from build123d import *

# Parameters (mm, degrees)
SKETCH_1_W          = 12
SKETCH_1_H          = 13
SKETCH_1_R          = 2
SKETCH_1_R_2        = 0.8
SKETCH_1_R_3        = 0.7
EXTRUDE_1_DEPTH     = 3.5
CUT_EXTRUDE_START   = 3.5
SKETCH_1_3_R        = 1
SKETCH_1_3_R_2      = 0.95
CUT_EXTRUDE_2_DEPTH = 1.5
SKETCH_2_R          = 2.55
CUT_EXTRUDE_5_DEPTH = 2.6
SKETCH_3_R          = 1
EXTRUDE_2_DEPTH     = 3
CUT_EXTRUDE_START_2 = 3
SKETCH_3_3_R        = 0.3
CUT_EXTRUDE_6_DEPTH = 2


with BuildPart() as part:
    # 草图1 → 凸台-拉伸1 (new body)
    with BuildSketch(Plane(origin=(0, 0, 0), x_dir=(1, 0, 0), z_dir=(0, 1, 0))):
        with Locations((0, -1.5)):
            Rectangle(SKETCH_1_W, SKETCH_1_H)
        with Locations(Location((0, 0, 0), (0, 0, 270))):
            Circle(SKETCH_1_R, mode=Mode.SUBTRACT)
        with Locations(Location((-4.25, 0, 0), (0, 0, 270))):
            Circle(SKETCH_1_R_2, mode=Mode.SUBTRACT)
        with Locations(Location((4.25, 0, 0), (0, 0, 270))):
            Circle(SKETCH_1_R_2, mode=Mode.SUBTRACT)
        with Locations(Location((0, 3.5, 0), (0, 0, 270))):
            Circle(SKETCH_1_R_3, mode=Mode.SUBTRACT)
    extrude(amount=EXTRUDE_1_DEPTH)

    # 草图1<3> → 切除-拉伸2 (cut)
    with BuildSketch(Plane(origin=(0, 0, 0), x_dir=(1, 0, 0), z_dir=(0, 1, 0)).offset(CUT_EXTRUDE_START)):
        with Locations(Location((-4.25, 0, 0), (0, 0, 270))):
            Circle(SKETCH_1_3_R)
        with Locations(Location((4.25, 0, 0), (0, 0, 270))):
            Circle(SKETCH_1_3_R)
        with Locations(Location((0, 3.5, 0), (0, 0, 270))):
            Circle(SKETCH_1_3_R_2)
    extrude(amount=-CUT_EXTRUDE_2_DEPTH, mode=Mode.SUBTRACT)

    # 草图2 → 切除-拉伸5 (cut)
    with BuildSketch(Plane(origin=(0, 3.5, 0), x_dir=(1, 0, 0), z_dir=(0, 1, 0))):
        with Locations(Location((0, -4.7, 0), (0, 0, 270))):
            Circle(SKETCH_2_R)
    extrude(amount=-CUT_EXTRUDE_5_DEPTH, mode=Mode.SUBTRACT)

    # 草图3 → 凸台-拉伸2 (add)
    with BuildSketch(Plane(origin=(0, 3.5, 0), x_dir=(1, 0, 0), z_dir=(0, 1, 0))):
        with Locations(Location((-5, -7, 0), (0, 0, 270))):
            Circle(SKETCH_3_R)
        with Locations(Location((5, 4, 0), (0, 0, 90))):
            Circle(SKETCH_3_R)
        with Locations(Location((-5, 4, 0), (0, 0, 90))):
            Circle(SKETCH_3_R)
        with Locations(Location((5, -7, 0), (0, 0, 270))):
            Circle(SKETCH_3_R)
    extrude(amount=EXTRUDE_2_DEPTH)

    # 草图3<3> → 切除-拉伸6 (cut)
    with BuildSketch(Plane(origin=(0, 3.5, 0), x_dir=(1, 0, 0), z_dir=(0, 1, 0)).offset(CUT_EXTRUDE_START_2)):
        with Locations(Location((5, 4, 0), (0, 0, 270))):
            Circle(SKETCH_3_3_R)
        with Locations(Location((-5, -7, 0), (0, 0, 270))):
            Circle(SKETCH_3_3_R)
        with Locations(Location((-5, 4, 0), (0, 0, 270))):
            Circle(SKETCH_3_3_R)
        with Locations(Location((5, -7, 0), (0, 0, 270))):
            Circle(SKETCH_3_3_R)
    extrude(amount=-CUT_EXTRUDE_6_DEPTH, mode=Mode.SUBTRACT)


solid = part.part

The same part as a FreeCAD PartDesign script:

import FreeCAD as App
import Part
import Sketcher

V = App.Vector
Q = App.Units.Quantity

doc = App.newDocument("Part")
body = doc.addObject("PartDesign::Body", "Body")

# Sketch on XZ plane
sketch1 = body.newObject("Sketcher::SketchObject", "Sketch")
sketch1.AttachmentSupport = (doc.getObject("XZ_Plane"), [""])
sketch1.MapMode = "FlatFace"
sketch1.addGeometry(Part.LineSegment(V(-6, -5, 0), V(-6, 8, 0)), False)
sketch1.addGeometry(Part.LineSegment(V(-6, 8, 0), V(6, 8, 0)), False)
sketch1.addGeometry(Part.LineSegment(V(6, 8, 0), V(6, -5, 0)), False)
sketch1.addGeometry(Part.LineSegment(V(6, -5, 0), V(-6, -5, 0)), False)
sketch1.addGeometry(Part.Circle(V(-4.25, 0, 0), V(0, 0, 1), 0.8), False)
sketch1.addGeometry(Part.Circle(V(0, 0, 0), V(0, 0, 1), 2), False)
sketch1.addGeometry(Part.Circle(V(4.25, 0, 0), V(0, 0, 1), 0.8), False)
sketch1.addGeometry(Part.Circle(V(0, -3.5, 0), V(0, 0, 1), 0.7), False)
sketch1.addConstraint(Sketcher.Constraint("Coincident", 0, 2, 1, 1))
sketch1.addConstraint(Sketcher.Constraint("Coincident", 1, 2, 2, 1))
sketch1.addConstraint(Sketcher.Constraint("Coincident", 2, 2, 3, 1))
sketch1.addConstraint(Sketcher.Constraint("Coincident", 3, 2, 0, 1))
sketch1.addConstraint(Sketcher.Constraint("Vertical", 0))
sketch1.addConstraint(Sketcher.Constraint("Horizontal", 1))
sketch1.addConstraint(Sketcher.Constraint("Vertical", 2))
sketch1.addConstraint(Sketcher.Constraint("Horizontal", 3))
sketch1.addConstraint(Sketcher.Constraint("Coincident", 5, 3, -1, 1))
sketch1.addConstraint(Sketcher.Constraint("Equal", 4, 6))
sketch1.addConstraint(Sketcher.Constraint("Symmetric", 4, 3, 6, 3, -1, 1))
sketch1.addConstraint(Sketcher.Constraint("PointOnObject", 4, 3, -1))
sketch1.addConstraint(Sketcher.Constraint("PointOnObject", 7, 3, -2))
sketch1.addConstraint(Sketcher.Constraint("Diameter", 5, Q("4 mm")))
sketch1.addConstraint(Sketcher.Constraint("Diameter", 4, Q("1.6 mm")))
sketch1.addConstraint(Sketcher.Constraint("Diameter", 7, Q("1.4 mm")))
sketch1.addConstraint(Sketcher.Constraint("DistanceX", 1, 1, 1, 2, Q("12 mm")))
sketch1.addConstraint(Sketcher.Constraint("DistanceY", 0, 1, 0, 2, Q("13 mm")))
sketch1.addConstraint(Sketcher.Constraint("DistanceX", 0, 2, -1, 1, Q("6 mm")))
sketch1.addConstraint(Sketcher.Constraint("DistanceY", -1, 1, 0, 2, Q("8 mm")))
sketch1.addConstraint(Sketcher.Constraint("DistanceY", 7, 3, -1, 1, Q("3.5 mm")))
sketch1.addConstraint(Sketcher.Constraint("DistanceX", 4, 3, 6, 3, Q("8.5 mm")))
pad1 = body.newObject("PartDesign::Pad", "Pad")
pad1.Profile = sketch1
pad1.Length = 3.5
pad1.Reversed = True

# Sketch on XZ plane
sketch2 = body.newObject("Sketcher::SketchObject", "Sketch001")
sketch2.AttachmentSupport = (doc.getObject("XZ_Plane"), [""])
sketch2.MapMode = "FlatFace"
sketch2.AttachmentOffset = App.Placement(V(0, 0, -3.5), App.Rotation())
sketch2.addGeometry(Part.Circle(V(-4.25, 0, 0), V(0, 0, 1), 1), False)
sketch2.addGeometry(Part.Circle(V(4.25, 0, 0), V(0, 0, 1), 1), False)
sketch2.addGeometry(Part.Circle(V(0, -3.5, 0), V(0, 0, 1), 0.95), False)
sketch2.addConstraint(Sketcher.Constraint("Equal", 0, 1))
sketch2.addConstraint(Sketcher.Constraint("Symmetric", 0, 3, 1, 3, -1, 1))
sketch2.addConstraint(Sketcher.Constraint("PointOnObject", 0, 3, -1))
sketch2.addConstraint(Sketcher.Constraint("PointOnObject", 2, 3, -2))
sketch2.addConstraint(Sketcher.Constraint("Diameter", 0, Q("2 mm")))
sketch2.addConstraint(Sketcher.Constraint("Diameter", 2, Q("1.9 mm")))
sketch2.addConstraint(Sketcher.Constraint("DistanceY", 2, 3, -1, 1, Q("3.5 mm")))
sketch2.addConstraint(Sketcher.Constraint("DistanceX", 0, 3, 1, 3, Q("8.5 mm")))
pocket1 = body.newObject("PartDesign::Pocket", "Pocket")
pocket1.Profile = sketch2
pocket1.Length = 1.5
pocket1.Reversed = True

# Sketch on XZ plane
sketch3 = body.newObject("Sketcher::SketchObject", "Sketch002")
sketch3.AttachmentSupport = (doc.getObject("XZ_Plane"), [""])
sketch3.MapMode = "FlatFace"
sketch3.AttachmentOffset = App.Placement(V(0, 0, -3.5), App.Rotation())
sketch3.addGeometry(Part.Circle(V(0, 4.7, 0), V(0, 0, 1), 2.55), False)
sketch3.addConstraint(Sketcher.Constraint("PointOnObject", 0, 3, -2))
sketch3.addConstraint(Sketcher.Constraint("Diameter", 0, Q("5.1 mm")))
sketch3.addConstraint(Sketcher.Constraint("DistanceY", -1, 1, 0, 3, Q("4.7 mm")))
pocket2 = body.newObject("PartDesign::Pocket", "Pocket001")
pocket2.Profile = sketch3
pocket2.Length = 2.6
pocket2.Reversed = True

# Sketch on XZ plane
sketch4 = body.newObject("Sketcher::SketchObject", "Sketch003")
sketch4.AttachmentSupport = (doc.getObject("XZ_Plane"), [""])
sketch4.MapMode = "FlatFace"
sketch4.AttachmentOffset = App.Placement(V(0, 0, -3.5), App.Rotation())
sketch4.addGeometry(Part.Circle(V(-5, 7, 0), V(0, 0, 1), 1), False)
sketch4.addGeometry(Part.Circle(V(5, -4, 0), V(0, 0, 1), 1), False)
sketch4.addGeometry(Part.Circle(V(-5, -4, 0), V(0, 0, 1), 1), False)
sketch4.addGeometry(Part.Circle(V(5, 7, 0), V(0, 0, 1), 1), False)
sketch4.addConstraint(Sketcher.Constraint("Equal", 0, 1))
sketch4.addConstraint(Sketcher.Constraint("Equal", 1, 2))
sketch4.addConstraint(Sketcher.Constraint("Equal", 2, 3))
sketch4.addConstraint(Sketcher.Constraint("Symmetric", 1, 3, 2, 3, -2))
sketch4.addConstraint(Sketcher.Constraint("Symmetric", 0, 3, 3, 3, -2))
sketch4.addConstraint(Sketcher.Constraint("Vertical", 0, 3, 2, 3))
sketch4.addConstraint(Sketcher.Constraint("Diameter", 0, Q("2 mm")))
sketch4.addConstraint(Sketcher.Constraint("DistanceX", 0, 3, -1, 1, Q("5 mm")))
sketch4.addConstraint(Sketcher.Constraint("DistanceY", -1, 1, 0, 3, Q("7 mm")))
sketch4.addConstraint(Sketcher.Constraint("DistanceY", 1, 3, -1, 1, Q("4 mm")))
pad2 = body.newObject("PartDesign::Pad", "Pad001")
pad2.Profile = sketch4
pad2.Length = 3
pad2.Reversed = True

# Sketch on XZ plane
sketch5 = body.newObject("Sketcher::SketchObject", "Sketch004")
sketch5.AttachmentSupport = (doc.getObject("XZ_Plane"), [""])
sketch5.MapMode = "FlatFace"
sketch5.AttachmentOffset = App.Placement(V(0, 0, -6.5), App.Rotation())
sketch5.addGeometry(Part.Circle(V(5, -4, 0), V(0, 0, 1), 0.3), False)
sketch5.addGeometry(Part.Circle(V(-5, 7, 0), V(0, 0, 1), 0.3), False)
sketch5.addGeometry(Part.Circle(V(-5, -4, 0), V(0, 0, 1), 0.3), False)
sketch5.addGeometry(Part.Circle(V(5, 7, 0), V(0, 0, 1), 0.3), False)
sketch5.addConstraint(Sketcher.Constraint("Equal", 0, 1))
sketch5.addConstraint(Sketcher.Constraint("Equal", 1, 2))
sketch5.addConstraint(Sketcher.Constraint("Equal", 2, 3))
sketch5.addConstraint(Sketcher.Constraint("Symmetric", 0, 3, 2, 3, -2))
sketch5.addConstraint(Sketcher.Constraint("Symmetric", 1, 3, 3, 3, -2))
sketch5.addConstraint(Sketcher.Constraint("Vertical", 1, 3, 2, 3))
sketch5.addConstraint(Sketcher.Constraint("Diameter", 0, Q("0.6 mm")))
sketch5.addConstraint(Sketcher.Constraint("DistanceX", -1, 1, 0, 3, Q("5 mm")))
sketch5.addConstraint(Sketcher.Constraint("DistanceY", 0, 3, -1, 1, Q("4 mm")))
sketch5.addConstraint(Sketcher.Constraint("DistanceY", -1, 1, 1, 3, Q("7 mm")))
pocket3 = body.newObject("PartDesign::Pocket", "Pocket002")
pocket3.Profile = sketch5
pocket3.Length = 2
pocket3.Reversed = True

doc.recompute()
